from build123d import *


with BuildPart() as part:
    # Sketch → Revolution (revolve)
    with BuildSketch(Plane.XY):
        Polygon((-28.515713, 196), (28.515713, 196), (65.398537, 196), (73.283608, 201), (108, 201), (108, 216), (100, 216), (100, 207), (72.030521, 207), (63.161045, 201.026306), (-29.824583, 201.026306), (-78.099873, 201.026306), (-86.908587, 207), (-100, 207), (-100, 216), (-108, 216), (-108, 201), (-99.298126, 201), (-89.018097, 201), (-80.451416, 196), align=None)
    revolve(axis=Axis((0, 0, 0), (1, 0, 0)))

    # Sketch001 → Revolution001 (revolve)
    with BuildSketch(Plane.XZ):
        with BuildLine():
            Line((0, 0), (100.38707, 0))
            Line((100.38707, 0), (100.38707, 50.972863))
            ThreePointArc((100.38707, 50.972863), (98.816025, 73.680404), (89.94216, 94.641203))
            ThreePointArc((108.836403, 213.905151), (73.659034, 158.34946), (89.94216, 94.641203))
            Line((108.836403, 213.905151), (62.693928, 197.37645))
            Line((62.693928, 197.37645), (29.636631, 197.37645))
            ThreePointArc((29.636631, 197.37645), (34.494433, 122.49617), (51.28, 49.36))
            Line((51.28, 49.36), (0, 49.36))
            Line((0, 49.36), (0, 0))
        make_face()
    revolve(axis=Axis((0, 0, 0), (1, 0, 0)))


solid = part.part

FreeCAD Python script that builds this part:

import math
import FreeCAD as App
import Part
import Sketcher

doc = App.newDocument("Part")
body = doc.addObject("PartDesign::Body", "Body")

sketch1 = body.newObject("Sketcher::SketchObject", "Sketch")
sketch1.AttachmentSupport = (doc.getObject("XY_Plane"), [""])
sketch1.MapMode = "FlatFace"
sketch1.addGeometry([
    Part.LineSegment(App.Vector(65, 196, 0), App.Vector(73, 201, 0)),
    Part.LineSegment(App.Vector(73, 201, 0), App.Vector(108, 201, 0)),
    Part.LineSegment(App.Vector(108, 201, 0), App.Vector(108, 216, 0)),
    Part.LineSegment(App.Vector(108, 216, 0), App.Vector(100, 216, 0)),
    Part.LineSegment(App.Vector(100, 216, 0), App.Vector(100, 207, 0)),
    Part.LineSegment(App.Vector(100, 207, 0), App.Vector(72, 207, 0)),
    Part.LineSegment(App.Vector(72, 207, 0), App.Vector(63, 201, 0)),
    Part.LineSegment(App.Vector(63, 201, 0), App.Vector(-78, 201, 0)),
    Part.LineSegment(App.Vector(-78, 201, 0), App.Vector(-87, 207, 0)),
    Part.LineSegment(App.Vector(-87, 207, 0), App.Vector(-100, 207, 0)),
    Part.LineSegment(App.Vector(-100, 207, 0), App.Vector(-100, 216, 0)),
    Part.LineSegment(App.Vector(-100, 216, 0), App.Vector(-108, 216, 0)),
    Part.LineSegment(App.Vector(-108, 216, 0), App.Vector(-108, 201, 0)),
    Part.LineSegment(App.Vector(-108, 201, 0), App.Vector(-89, 201, 0)),
    Part.LineSegment(App.Vector(-89, 201, 0), App.Vector(-80, 196, 0)),
    Part.LineSegment(App.Vector(-80, 196, 0), App.Vector(65, 196, 0)),
], False)
sketch1.addConstraint([
    Sketcher.Constraint("Coincident", 0, 2, 1, 1),
    Sketcher.Constraint("Coincident", 1, 2, 2, 1),
    Sketcher.Constraint("Coincident", 2, 2, 3, 1),
    Sketcher.Constraint("Coincident", 3, 2, 4, 1),
    Sketcher.Constraint("Coincident", 4, 2, 5, 1),
    Sketcher.Constraint("Coincident", 5, 2, 6, 1),
    Sketcher.Constraint("Coincident", 6, 2, 7, 1),
    Sketcher.Constraint("Coincident", 7, 2, 8, 1),
    Sketcher.Constraint("Coincident", 8, 2, 9, 1),
    Sketcher.Constraint("Coincident", 9, 2, 10, 1),
    Sketcher.Constraint("Coincident", 10, 2, 11, 1),
    Sketcher.Constraint("Coincident", 11, 2, 12, 1),
    Sketcher.Constraint("Coincident", 12, 2, 13, 1),
    Sketcher.Constraint("Coincident", 13, 2, 14, 1),
    Sketcher.Constraint("Coincident", 14, 2, 15, 1),
    Sketcher.Constraint("Coincident", 15, 2, 0, 1),
    Sketcher.Constraint("Horizontal", 1),
    Sketcher.Constraint("Vertical", 2),
    Sketcher.Constraint("Horizontal", 3),
    Sketcher.Constraint("Vertical", 4),
    Sketcher.Constraint("Horizontal", 5),
    Sketcher.Constraint("Horizontal", 7),
    Sketcher.Constraint("Horizontal", 9),
    Sketcher.Constraint("Vertical", 10),
    Sketcher.Constraint("Horizontal", 11),
    Sketcher.Constraint("Vertical", 12),
    Sketcher.Constraint("Horizontal", 13),
    Sketcher.Constraint("Horizontal", 15),
    Sketcher.Constraint("Symmetric", 4, 2, 9, 2, -2),
    Sketcher.Constraint("Symmetric", 2, 2, 11, 2, -2),
    Sketcher.Constraint("Horizontal", 1, 2, 12, 2),
    Sketcher.Constraint("DistanceX", 3, 2, 3, 1, 8.0),
    Sketcher.Constraint("DistanceY", 2, 1, 2, 2, 15.0),
    Sketcher.Constraint("DistanceY", 4, 2, 4, 1, 9.0),
    Sketcher.Constraint("DistanceY", -1, 1, 0, 2, 201.0),
    Sketcher.Constraint("DistanceX", -1, 1, 1, 2, 108.0),
    Sketcher.Constraint("DistanceY", -1, 1, 14, 2, 196.0),
    Sketcher.Constraint("DistanceX", 5, 2, 5, 1, 27.969479),
    Sketcher.Constraint("DistanceX", 7, 2, 7, 1, 141.260918),
    Sketcher.Constraint("Distance", 0, 9.33672),
    Sketcher.Constraint("Distance", 6, 10.693579),
    Sketcher.Constraint("DistanceX", 1, 1, 1, 2, 34.716392),
    Sketcher.Constraint("DistanceX", 9, 2, 9, 1, 13.091413),
    Sketcher.Constraint("DistanceX", 13, 1, 13, 2, 18.981903),
    Sketcher.Constraint("DistanceX", 15, 1, 15, 2, 145.849953),
    Sketcher.Constraint("DistanceX", 7, 2, 0, 2, 151.383481),
])
revolution = body.newObject("PartDesign::Revolution", "Revolution")
revolution.Profile = sketch1
revolution.ReferenceAxis = (sketch1, ["H_Axis"])
revolution.Angle = 360

sketch2 = body.newObject("Sketcher::SketchObject", "Sketch001")
sketch2.AttachmentSupport = (doc.getObject("XZ_Plane"), [""])
sketch2.MapMode = "FlatFace"
sketch2.addGeometry([
    Part.LineSegment(App.Vector(0, 0, 0), App.Vector(100, 0, 0)),
    Part.LineSegment(App.Vector(100, 0, 0), App.Vector(100, 51, 0)),
    Part.ArcOfCircle(Part.Circle(App.Vector(32, 58, 0), App.Vector(0, 0, 1), 69), math.radians(-6), math.radians(32)),
    Part.ArcOfCircle(Part.Circle(App.Vector(156, 145, 0), App.Vector(0, 0, 1), 83), math.radians(124), math.radians(218)),
    Part.LineSegment(App.Vector(109, 214, 0), App.Vector(63, 197, 0)),
    Part.LineSegment(App.Vector(63, 197, 0), App.Vector(30, 197, 0)),
    Part.ArcOfCircle(Part.Circle(App.Vector(497, 190, 0), App.Vector(0, 0, 1), 467), math.radians(179.1), math.radians(197.53)),
    Part.LineSegment(App.Vector(51, 49, 0), App.Vector(0, 49, 0)),
    Part.LineSegment(App.Vector(0, 49, 0), App.Vector(0, 0, 0)),
], False)
sketch2.addConstraint([
    Sketcher.Constraint("Coincident", 0, 2, 1, 1),
    Sketcher.Constraint("Coincident", 1, 2, 2, 1),
    Sketcher.Constraint("Coincident", 2, 2, 3, 2),
    Sketcher.Constraint("Coincident", 3, 1, 4, 1),
    Sketcher.Constraint("Coincident", 4, 2, 5, 1),
    Sketcher.Constraint("Coincident", 5, 2, 6, 1),
    Sketcher.Constraint("Coincident", 6, 2, 7, 1),
    Sketcher.Constraint("Coincident", 7, 2, 8, 1),
    Sketcher.Constraint("Coincident", 8, 2, 0, 1),
    Sketcher.Constraint("Horizontal", 0),
    Sketcher.Constraint("Vertical", 1),
    Sketcher.Constraint("Horizontal", 5),
    Sketcher.Constraint("Horizontal", 7),
    Sketcher.Constraint("Vertical", 8),
    Sketcher.Constraint("Coincident", 8, 2, -1, 1),
    Sketcher.Constraint("DistanceX", 7, 2, 7, 1, 51.28),
    Sketcher.Constraint("DistanceY", 8, 2, 8, 1, 49.36),
    Sketcher.Constraint("Radius", 2, 68.998991),
    Sketcher.Constraint("Radius", 3, 82.988359),
    Sketcher.Constraint("Radius", 6, 467.095743),
    Sketcher.Constraint("DistanceX", 0, 1, 0, 2, 100.38707),
    Sketcher.Constraint("DistanceX", 0, 2, 3, 3, 55.2381),
    Sketcher.Constraint("DistanceY", 4, 2, 3, 1, 16.528701),
    Sketcher.Constraint("Distance", 4, 49.013528),
    Sketcher.Constraint("DistanceX", 5, 2, 5, 1, 33.057297),
    Sketcher.Constraint("DistanceY", 1, 1, 1, 2, 50.972863),
    Sketcher.Constraint("DistanceY", -1, 1, 2, 3, 57.629481),
    Sketcher.Constraint("DistanceX", -1, 1, 2, 2, 89.94216),
    Sketcher.Constraint("DistanceY", -1, 1, 3, 1, 213.905151),
])
revolution2 = body.newObject("PartDesign::Revolution", "Revolution001")
revolution2.Profile = sketch2
revolution2.ReferenceAxis = (sketch2, ["H_Axis"])
revolution2.Angle = 360

doc.recompute()
